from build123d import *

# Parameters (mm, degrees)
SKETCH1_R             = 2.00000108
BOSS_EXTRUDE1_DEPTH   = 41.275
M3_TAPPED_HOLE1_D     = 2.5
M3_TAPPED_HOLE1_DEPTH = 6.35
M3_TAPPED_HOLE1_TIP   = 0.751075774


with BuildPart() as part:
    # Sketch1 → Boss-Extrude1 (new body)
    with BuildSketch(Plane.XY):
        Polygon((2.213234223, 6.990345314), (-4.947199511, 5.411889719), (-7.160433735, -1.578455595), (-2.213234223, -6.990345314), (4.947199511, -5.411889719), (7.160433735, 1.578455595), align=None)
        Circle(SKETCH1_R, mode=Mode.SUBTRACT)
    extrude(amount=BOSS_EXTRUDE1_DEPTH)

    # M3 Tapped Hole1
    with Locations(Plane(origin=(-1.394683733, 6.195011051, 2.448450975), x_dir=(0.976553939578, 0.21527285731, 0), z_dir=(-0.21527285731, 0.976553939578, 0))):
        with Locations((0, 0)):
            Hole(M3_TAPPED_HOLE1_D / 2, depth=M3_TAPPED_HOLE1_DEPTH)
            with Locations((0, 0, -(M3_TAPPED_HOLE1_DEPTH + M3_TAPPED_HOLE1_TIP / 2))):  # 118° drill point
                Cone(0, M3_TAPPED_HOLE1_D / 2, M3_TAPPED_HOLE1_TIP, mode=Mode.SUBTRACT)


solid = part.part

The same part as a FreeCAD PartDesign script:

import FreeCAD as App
import Part
import Sketcher

V = App.Vector
Q = App.Units.Quantity

doc = App.newDocument("Part")
body = doc.addObject("PartDesign::Body", "Body")

# Sketch on XY plane
sketch1 = body.newObject("Sketcher::SketchObject", "Sketch")
sketch1.AttachmentSupport = (doc.getObject("XY_Plane"), [""])
sketch1.MapMode = "FlatFace"
sketch1.addGeometry([
    Part.LineSegment(V(2.2, 7, 0), V(-4.9, 5.4, 0)),  # 0
    Part.LineSegment(V(-4.9, 5.4, 0), V(-7.2, -1.6, 0)),  # 1
    Part.LineSegment(V(-7.2, -1.6, 0), V(-2.2, -7, 0)),  # 2
    Part.LineSegment(V(-2.2, -7, 0), V(4.9, -5.4, 0)),  # 3
    Part.LineSegment(V(4.9, -5.4, 0), V(7.2, 1.6, 0)),  # 4
    Part.LineSegment(V(7.2, 1.6, 0), V(2.2, 7, 0)),  # 5
    Part.Circle(V(0, 0, 0), V(0, 0, 1), 2),  # 6
], False)
sketch1.addConstraint([
    Sketcher.Constraint("Coincident", 0, 2, 1, 1),
    Sketcher.Constraint("Coincident", 1, 2, 2, 1),
    Sketcher.Constraint("Coincident", 2, 2, 3, 1),
    Sketcher.Constraint("Coincident", 3, 2, 4, 1),
    Sketcher.Constraint("Coincident", 4, 2, 5, 1),
    Sketcher.Constraint("Coincident", 5, 2, 0, 1),
    Sketcher.Constraint("Coincident", 6, 3, -1, 1),
    Sketcher.Constraint("Symmetric", 0, 2, 3, 2, -1, 1),
    Sketcher.Constraint("Symmetric", 1, 2, 4, 2, -1, 1),
    Sketcher.Constraint("Symmetric", 2, 2, 5, 2, -1, 1),
    Sketcher.Constraint("Equal", 0, 1),
    Sketcher.Constraint("Equal", 1, 2),
    Sketcher.Constraint("Diameter", 6, Q("4.000002 mm")),
    Sketcher.Constraint("DistanceX", 0, 2, -1, 1, Q("4.9472 mm")),
    Sketcher.Constraint("DistanceX", 1, 2, 2, 2, Q("4.9472 mm")),
    Sketcher.Constraint("DistanceY", 2, 2, 4, 2, Q("8.568801 mm")),
    Sketcher.Constraint("Distance", 0, Q("7.332348 mm")),
])
pad1 = body.newObject("PartDesign::Pad", "Pad")
pad1.Profile = sketch1
pad1.Length = Q("1.625 in")

# Sketch on an angled plane
sketch2 = body.newObject("Sketcher::SketchObject", "Sketch001")
sketch2.Placement = App.Placement(V(-1.366983, 6.201118, 0), App.Rotation(V(0.97655394, 0.215272857, 0), V(0, 0, -1.000000001), V(-0.215272857, 0.97655394, 0), "ZXY"))
sketch2.addGeometry(Part.Circle(V(0, -2.4, 0), V(0, 0, 1), 1.2), False)
sketch2.addConstraint([
    Sketcher.Constraint("Diameter", 0, Q("2.5 mm")),
    Sketcher.Constraint("DistanceY", 0, 3, -1, 1, Q("2.448451 mm")),
    Sketcher.Constraint("DistanceX", 0, 3, -1, 1, Q("0.028366 mm")),
])
doc.recompute()
hole = body.newObject("PartDesign::Hole", "Hole")
hole.Profile = sketch2
hole.ThreadType = "None"
hole.Diameter = 2.5
hole.DepthType = "Dimension"
hole.Depth = Q("0.25 in")
hole.DrillPoint = "Angled"
hole.DrillPointAngle = 118

doc.recompute()
